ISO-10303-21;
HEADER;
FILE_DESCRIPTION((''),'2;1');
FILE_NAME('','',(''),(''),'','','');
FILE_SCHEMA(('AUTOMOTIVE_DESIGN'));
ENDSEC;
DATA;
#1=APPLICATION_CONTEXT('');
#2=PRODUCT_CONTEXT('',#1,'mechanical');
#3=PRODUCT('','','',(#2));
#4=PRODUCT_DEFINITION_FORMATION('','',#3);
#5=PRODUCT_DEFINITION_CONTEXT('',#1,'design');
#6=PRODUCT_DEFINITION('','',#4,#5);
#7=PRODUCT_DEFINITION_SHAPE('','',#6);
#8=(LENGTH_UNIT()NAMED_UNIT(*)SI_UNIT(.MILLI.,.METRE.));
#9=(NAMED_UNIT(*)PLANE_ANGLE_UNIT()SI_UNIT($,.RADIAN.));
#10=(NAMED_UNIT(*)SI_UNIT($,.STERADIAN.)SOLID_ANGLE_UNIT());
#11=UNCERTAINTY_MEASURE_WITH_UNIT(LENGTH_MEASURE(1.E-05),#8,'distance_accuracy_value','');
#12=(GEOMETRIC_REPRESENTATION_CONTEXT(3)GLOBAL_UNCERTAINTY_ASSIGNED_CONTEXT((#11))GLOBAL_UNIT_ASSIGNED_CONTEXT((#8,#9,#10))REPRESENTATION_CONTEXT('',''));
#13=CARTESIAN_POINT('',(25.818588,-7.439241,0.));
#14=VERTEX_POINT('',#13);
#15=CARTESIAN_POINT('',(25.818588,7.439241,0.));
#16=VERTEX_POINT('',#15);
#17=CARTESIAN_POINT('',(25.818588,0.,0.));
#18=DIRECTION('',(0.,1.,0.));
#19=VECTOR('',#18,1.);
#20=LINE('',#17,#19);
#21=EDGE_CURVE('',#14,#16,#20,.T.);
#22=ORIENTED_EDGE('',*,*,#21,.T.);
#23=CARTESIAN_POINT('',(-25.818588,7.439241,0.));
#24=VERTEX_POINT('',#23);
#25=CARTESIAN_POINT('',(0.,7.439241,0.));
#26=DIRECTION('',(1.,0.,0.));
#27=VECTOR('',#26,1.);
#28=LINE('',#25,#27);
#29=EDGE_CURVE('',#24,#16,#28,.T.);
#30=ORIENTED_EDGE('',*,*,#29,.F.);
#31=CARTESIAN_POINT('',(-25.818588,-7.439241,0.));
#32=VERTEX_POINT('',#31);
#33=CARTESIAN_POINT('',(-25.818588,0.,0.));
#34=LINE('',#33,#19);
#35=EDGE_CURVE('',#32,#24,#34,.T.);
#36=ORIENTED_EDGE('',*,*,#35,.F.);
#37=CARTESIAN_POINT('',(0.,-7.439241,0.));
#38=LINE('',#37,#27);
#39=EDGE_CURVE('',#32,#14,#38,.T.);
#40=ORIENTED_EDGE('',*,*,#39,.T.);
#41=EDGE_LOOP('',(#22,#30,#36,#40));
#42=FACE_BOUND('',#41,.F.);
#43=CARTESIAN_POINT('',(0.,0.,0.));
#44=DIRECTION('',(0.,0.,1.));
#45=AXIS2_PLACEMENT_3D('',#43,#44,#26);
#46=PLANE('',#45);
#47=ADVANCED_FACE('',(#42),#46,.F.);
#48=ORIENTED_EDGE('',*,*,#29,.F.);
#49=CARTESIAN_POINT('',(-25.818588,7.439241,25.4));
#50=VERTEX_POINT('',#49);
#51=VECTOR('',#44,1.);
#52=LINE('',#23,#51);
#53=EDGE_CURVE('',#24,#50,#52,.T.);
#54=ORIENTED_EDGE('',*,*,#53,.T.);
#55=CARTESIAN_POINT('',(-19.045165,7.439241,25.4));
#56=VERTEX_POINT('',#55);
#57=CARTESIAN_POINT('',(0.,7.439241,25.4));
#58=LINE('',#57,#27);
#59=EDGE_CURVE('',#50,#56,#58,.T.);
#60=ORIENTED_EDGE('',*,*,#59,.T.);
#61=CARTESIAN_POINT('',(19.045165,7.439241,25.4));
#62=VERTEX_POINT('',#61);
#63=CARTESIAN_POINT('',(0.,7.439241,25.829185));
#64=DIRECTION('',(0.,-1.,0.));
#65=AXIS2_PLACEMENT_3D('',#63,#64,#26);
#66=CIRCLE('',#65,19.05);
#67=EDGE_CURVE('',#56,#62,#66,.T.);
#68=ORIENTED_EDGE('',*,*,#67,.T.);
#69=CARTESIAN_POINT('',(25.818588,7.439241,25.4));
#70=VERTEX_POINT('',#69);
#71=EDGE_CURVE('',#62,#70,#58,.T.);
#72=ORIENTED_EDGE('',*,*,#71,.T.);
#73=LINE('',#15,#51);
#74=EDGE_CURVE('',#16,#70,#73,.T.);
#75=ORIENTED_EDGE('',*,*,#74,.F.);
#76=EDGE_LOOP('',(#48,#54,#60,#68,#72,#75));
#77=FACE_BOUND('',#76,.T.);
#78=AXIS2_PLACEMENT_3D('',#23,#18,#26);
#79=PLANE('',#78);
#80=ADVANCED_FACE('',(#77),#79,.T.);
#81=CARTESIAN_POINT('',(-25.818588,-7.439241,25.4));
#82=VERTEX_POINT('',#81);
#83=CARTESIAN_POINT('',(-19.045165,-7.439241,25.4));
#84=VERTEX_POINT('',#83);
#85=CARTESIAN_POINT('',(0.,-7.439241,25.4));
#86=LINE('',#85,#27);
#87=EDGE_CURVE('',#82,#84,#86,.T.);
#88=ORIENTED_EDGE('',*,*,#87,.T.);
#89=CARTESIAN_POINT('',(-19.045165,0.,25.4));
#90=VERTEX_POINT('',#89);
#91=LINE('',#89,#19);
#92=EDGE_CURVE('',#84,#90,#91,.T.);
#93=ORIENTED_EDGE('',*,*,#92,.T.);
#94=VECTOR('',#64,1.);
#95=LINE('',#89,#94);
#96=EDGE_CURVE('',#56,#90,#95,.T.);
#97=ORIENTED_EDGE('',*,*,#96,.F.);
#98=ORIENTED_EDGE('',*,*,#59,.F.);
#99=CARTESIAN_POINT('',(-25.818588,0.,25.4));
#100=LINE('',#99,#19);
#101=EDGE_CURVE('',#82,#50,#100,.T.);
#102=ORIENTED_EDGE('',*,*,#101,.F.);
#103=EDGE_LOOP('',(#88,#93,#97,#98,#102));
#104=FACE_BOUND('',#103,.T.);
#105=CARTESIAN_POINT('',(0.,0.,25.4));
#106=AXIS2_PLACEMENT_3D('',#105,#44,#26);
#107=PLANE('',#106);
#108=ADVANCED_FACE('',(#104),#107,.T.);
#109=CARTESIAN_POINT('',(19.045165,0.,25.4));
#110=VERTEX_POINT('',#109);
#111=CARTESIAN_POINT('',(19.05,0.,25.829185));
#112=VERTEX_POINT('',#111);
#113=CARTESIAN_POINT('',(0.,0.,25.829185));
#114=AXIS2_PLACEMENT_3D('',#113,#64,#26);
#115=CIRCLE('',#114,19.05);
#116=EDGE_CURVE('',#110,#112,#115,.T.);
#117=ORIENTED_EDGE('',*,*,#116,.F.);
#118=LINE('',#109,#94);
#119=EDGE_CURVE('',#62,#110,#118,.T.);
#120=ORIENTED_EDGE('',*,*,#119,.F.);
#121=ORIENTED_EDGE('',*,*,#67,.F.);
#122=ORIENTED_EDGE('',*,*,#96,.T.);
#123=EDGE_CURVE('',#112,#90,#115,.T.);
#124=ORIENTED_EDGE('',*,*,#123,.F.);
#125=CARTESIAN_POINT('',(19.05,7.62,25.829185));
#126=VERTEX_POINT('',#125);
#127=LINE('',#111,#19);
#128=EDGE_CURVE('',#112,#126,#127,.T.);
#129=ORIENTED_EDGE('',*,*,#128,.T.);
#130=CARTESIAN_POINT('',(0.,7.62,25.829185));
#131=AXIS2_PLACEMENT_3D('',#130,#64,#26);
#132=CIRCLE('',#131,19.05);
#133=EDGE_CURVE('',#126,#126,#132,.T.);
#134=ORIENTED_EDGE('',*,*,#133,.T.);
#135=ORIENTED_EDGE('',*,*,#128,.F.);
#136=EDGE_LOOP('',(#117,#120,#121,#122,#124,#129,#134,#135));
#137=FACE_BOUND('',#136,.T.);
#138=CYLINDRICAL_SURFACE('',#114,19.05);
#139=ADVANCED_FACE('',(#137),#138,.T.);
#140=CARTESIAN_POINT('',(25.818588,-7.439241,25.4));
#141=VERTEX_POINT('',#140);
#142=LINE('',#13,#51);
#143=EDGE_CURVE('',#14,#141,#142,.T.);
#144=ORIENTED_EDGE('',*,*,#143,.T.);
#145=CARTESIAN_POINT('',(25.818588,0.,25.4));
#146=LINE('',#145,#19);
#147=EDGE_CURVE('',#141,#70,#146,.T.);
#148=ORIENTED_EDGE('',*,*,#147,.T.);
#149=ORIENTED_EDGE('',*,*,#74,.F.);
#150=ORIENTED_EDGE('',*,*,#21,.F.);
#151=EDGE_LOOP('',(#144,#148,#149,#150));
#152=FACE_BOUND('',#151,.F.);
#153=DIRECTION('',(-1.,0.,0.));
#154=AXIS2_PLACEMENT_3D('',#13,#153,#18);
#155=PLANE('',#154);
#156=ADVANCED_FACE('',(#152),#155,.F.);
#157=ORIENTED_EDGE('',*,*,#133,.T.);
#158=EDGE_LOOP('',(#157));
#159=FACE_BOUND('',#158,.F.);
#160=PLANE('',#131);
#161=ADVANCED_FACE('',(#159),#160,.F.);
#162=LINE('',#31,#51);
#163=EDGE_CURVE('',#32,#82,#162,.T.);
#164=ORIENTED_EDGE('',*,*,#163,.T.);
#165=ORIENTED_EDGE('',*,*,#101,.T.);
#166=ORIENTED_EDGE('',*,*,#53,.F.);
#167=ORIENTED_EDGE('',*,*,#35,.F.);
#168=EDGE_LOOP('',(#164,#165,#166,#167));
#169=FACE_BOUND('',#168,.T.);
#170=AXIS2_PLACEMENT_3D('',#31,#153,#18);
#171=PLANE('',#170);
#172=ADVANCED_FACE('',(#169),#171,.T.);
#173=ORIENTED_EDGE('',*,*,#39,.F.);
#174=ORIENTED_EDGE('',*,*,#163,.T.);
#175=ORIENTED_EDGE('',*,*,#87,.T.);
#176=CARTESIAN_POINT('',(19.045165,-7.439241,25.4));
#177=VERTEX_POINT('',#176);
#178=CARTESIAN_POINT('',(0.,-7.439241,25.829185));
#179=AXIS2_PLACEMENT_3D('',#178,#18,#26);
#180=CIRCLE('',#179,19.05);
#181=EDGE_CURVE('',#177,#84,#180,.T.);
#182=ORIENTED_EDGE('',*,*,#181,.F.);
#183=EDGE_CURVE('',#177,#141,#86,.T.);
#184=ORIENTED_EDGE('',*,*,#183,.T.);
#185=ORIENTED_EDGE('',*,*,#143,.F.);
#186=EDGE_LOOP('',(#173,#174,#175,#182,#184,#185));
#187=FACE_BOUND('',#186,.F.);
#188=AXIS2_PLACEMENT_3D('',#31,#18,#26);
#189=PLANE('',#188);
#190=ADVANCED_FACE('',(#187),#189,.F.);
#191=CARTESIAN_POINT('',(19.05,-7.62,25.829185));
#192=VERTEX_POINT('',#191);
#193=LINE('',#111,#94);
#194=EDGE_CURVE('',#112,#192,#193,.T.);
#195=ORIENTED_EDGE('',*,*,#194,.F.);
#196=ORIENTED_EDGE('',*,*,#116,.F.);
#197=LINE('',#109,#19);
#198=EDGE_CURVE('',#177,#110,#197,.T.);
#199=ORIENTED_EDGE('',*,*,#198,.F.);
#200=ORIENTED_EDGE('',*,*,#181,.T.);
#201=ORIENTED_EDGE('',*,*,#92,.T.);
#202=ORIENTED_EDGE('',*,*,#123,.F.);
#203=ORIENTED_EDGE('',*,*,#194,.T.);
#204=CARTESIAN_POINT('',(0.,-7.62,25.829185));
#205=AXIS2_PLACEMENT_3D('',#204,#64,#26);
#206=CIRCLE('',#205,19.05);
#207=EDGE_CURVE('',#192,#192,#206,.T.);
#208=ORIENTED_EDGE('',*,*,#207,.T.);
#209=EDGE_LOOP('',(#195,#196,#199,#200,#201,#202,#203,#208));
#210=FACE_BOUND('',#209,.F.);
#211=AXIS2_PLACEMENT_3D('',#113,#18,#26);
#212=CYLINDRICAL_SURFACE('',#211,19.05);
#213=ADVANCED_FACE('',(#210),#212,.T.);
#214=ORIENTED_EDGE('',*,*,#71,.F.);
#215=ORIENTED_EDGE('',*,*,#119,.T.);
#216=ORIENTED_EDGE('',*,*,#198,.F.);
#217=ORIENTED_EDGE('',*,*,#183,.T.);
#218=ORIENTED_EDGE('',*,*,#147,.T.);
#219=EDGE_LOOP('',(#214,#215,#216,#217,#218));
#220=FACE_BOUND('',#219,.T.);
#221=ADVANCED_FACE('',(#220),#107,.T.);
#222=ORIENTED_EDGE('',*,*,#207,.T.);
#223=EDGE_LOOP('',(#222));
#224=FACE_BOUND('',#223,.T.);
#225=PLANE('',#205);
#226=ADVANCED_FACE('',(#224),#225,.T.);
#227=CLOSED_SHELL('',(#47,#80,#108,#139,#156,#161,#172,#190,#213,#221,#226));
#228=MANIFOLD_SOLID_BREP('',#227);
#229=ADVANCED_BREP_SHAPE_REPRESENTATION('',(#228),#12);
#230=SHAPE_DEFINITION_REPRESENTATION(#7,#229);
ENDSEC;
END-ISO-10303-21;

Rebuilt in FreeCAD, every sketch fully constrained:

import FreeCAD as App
import Part
import Sketcher

V = App.Vector
Q = App.Units.Quantity


def add_polygon(sketch, points):
    """Adds a closed chain of lines whose ends are joined by coincident constraints."""
    first, n = sketch.GeometryCount, len(points)
    for a, b in zip(points, points[1:] + points[:1]):
        sketch.addGeometry(Part.LineSegment(App.Vector(*a, 0), App.Vector(*b, 0)), False)
    for i in range(n):
        sketch.addConstraint(Sketcher.Constraint("Coincident", first + i, 2, first + (i + 1) % n, 1))

doc = App.newDocument("Part")
body = doc.addObject("PartDesign::Body", "Body")

sketch1 = body.newObject("Sketcher::SketchObject", "Sketch")
sketch1.AttachmentSupport = (doc.getObject("XY_Plane"), [""])
sketch1.MapMode = "FlatFace"
add_polygon(sketch1, [(-26, 7), (-26, -7), (26, -7), (26, 7)])
sketch1.addConstraint(Sketcher.Constraint("Vertical", 0))
sketch1.addConstraint(Sketcher.Constraint("Horizontal", 1))
sketch1.addConstraint(Sketcher.Constraint("Vertical", 2))
sketch1.addConstraint(Sketcher.Constraint("Horizontal", 3))
sketch1.addConstraint(Sketcher.Constraint("Symmetric", 0, 2, 2, 2, -1, 1))
sketch1.addConstraint(Sketcher.Constraint("DistanceX", 1, 1, 1, 2, Q("51.637176 mm")))
sketch1.addConstraint(Sketcher.Constraint("DistanceY", 0, 2, 0, 1, Q("14.878482 mm")))
pad1 = body.newObject("PartDesign::Pad", "Pad")
pad1.Profile = sketch1
pad1.Length = Q("1 in")

sketch2 = body.newObject("Sketcher::SketchObject", "Sketch001")
sketch2.AttachmentSupport = (doc.getObject("XZ_Plane"), [""])
sketch2.MapMode = "FlatFace"
sketch2.addGeometry(Part.Circle(V(0, 26, 0), V(0, 0, 1), 19), False)
sketch2.addConstraint(Sketcher.Constraint("PointOnObject", 0, 3, -2))
sketch2.addConstraint(Sketcher.Constraint("Diameter", 0, Q("1.5 in")))
sketch2.addConstraint(Sketcher.Constraint("DistanceY", -1, 1, 0, 3, Q("25.829185 mm")))
pad2 = body.newObject("PartDesign::Pad", "Pad001")
pad2.Profile = sketch2
pad2.Type = "TwoLengths"
pad2.Length = Q("0.3 in")
pad2.Length2 = Q("0.3 in")

doc.recompute()
